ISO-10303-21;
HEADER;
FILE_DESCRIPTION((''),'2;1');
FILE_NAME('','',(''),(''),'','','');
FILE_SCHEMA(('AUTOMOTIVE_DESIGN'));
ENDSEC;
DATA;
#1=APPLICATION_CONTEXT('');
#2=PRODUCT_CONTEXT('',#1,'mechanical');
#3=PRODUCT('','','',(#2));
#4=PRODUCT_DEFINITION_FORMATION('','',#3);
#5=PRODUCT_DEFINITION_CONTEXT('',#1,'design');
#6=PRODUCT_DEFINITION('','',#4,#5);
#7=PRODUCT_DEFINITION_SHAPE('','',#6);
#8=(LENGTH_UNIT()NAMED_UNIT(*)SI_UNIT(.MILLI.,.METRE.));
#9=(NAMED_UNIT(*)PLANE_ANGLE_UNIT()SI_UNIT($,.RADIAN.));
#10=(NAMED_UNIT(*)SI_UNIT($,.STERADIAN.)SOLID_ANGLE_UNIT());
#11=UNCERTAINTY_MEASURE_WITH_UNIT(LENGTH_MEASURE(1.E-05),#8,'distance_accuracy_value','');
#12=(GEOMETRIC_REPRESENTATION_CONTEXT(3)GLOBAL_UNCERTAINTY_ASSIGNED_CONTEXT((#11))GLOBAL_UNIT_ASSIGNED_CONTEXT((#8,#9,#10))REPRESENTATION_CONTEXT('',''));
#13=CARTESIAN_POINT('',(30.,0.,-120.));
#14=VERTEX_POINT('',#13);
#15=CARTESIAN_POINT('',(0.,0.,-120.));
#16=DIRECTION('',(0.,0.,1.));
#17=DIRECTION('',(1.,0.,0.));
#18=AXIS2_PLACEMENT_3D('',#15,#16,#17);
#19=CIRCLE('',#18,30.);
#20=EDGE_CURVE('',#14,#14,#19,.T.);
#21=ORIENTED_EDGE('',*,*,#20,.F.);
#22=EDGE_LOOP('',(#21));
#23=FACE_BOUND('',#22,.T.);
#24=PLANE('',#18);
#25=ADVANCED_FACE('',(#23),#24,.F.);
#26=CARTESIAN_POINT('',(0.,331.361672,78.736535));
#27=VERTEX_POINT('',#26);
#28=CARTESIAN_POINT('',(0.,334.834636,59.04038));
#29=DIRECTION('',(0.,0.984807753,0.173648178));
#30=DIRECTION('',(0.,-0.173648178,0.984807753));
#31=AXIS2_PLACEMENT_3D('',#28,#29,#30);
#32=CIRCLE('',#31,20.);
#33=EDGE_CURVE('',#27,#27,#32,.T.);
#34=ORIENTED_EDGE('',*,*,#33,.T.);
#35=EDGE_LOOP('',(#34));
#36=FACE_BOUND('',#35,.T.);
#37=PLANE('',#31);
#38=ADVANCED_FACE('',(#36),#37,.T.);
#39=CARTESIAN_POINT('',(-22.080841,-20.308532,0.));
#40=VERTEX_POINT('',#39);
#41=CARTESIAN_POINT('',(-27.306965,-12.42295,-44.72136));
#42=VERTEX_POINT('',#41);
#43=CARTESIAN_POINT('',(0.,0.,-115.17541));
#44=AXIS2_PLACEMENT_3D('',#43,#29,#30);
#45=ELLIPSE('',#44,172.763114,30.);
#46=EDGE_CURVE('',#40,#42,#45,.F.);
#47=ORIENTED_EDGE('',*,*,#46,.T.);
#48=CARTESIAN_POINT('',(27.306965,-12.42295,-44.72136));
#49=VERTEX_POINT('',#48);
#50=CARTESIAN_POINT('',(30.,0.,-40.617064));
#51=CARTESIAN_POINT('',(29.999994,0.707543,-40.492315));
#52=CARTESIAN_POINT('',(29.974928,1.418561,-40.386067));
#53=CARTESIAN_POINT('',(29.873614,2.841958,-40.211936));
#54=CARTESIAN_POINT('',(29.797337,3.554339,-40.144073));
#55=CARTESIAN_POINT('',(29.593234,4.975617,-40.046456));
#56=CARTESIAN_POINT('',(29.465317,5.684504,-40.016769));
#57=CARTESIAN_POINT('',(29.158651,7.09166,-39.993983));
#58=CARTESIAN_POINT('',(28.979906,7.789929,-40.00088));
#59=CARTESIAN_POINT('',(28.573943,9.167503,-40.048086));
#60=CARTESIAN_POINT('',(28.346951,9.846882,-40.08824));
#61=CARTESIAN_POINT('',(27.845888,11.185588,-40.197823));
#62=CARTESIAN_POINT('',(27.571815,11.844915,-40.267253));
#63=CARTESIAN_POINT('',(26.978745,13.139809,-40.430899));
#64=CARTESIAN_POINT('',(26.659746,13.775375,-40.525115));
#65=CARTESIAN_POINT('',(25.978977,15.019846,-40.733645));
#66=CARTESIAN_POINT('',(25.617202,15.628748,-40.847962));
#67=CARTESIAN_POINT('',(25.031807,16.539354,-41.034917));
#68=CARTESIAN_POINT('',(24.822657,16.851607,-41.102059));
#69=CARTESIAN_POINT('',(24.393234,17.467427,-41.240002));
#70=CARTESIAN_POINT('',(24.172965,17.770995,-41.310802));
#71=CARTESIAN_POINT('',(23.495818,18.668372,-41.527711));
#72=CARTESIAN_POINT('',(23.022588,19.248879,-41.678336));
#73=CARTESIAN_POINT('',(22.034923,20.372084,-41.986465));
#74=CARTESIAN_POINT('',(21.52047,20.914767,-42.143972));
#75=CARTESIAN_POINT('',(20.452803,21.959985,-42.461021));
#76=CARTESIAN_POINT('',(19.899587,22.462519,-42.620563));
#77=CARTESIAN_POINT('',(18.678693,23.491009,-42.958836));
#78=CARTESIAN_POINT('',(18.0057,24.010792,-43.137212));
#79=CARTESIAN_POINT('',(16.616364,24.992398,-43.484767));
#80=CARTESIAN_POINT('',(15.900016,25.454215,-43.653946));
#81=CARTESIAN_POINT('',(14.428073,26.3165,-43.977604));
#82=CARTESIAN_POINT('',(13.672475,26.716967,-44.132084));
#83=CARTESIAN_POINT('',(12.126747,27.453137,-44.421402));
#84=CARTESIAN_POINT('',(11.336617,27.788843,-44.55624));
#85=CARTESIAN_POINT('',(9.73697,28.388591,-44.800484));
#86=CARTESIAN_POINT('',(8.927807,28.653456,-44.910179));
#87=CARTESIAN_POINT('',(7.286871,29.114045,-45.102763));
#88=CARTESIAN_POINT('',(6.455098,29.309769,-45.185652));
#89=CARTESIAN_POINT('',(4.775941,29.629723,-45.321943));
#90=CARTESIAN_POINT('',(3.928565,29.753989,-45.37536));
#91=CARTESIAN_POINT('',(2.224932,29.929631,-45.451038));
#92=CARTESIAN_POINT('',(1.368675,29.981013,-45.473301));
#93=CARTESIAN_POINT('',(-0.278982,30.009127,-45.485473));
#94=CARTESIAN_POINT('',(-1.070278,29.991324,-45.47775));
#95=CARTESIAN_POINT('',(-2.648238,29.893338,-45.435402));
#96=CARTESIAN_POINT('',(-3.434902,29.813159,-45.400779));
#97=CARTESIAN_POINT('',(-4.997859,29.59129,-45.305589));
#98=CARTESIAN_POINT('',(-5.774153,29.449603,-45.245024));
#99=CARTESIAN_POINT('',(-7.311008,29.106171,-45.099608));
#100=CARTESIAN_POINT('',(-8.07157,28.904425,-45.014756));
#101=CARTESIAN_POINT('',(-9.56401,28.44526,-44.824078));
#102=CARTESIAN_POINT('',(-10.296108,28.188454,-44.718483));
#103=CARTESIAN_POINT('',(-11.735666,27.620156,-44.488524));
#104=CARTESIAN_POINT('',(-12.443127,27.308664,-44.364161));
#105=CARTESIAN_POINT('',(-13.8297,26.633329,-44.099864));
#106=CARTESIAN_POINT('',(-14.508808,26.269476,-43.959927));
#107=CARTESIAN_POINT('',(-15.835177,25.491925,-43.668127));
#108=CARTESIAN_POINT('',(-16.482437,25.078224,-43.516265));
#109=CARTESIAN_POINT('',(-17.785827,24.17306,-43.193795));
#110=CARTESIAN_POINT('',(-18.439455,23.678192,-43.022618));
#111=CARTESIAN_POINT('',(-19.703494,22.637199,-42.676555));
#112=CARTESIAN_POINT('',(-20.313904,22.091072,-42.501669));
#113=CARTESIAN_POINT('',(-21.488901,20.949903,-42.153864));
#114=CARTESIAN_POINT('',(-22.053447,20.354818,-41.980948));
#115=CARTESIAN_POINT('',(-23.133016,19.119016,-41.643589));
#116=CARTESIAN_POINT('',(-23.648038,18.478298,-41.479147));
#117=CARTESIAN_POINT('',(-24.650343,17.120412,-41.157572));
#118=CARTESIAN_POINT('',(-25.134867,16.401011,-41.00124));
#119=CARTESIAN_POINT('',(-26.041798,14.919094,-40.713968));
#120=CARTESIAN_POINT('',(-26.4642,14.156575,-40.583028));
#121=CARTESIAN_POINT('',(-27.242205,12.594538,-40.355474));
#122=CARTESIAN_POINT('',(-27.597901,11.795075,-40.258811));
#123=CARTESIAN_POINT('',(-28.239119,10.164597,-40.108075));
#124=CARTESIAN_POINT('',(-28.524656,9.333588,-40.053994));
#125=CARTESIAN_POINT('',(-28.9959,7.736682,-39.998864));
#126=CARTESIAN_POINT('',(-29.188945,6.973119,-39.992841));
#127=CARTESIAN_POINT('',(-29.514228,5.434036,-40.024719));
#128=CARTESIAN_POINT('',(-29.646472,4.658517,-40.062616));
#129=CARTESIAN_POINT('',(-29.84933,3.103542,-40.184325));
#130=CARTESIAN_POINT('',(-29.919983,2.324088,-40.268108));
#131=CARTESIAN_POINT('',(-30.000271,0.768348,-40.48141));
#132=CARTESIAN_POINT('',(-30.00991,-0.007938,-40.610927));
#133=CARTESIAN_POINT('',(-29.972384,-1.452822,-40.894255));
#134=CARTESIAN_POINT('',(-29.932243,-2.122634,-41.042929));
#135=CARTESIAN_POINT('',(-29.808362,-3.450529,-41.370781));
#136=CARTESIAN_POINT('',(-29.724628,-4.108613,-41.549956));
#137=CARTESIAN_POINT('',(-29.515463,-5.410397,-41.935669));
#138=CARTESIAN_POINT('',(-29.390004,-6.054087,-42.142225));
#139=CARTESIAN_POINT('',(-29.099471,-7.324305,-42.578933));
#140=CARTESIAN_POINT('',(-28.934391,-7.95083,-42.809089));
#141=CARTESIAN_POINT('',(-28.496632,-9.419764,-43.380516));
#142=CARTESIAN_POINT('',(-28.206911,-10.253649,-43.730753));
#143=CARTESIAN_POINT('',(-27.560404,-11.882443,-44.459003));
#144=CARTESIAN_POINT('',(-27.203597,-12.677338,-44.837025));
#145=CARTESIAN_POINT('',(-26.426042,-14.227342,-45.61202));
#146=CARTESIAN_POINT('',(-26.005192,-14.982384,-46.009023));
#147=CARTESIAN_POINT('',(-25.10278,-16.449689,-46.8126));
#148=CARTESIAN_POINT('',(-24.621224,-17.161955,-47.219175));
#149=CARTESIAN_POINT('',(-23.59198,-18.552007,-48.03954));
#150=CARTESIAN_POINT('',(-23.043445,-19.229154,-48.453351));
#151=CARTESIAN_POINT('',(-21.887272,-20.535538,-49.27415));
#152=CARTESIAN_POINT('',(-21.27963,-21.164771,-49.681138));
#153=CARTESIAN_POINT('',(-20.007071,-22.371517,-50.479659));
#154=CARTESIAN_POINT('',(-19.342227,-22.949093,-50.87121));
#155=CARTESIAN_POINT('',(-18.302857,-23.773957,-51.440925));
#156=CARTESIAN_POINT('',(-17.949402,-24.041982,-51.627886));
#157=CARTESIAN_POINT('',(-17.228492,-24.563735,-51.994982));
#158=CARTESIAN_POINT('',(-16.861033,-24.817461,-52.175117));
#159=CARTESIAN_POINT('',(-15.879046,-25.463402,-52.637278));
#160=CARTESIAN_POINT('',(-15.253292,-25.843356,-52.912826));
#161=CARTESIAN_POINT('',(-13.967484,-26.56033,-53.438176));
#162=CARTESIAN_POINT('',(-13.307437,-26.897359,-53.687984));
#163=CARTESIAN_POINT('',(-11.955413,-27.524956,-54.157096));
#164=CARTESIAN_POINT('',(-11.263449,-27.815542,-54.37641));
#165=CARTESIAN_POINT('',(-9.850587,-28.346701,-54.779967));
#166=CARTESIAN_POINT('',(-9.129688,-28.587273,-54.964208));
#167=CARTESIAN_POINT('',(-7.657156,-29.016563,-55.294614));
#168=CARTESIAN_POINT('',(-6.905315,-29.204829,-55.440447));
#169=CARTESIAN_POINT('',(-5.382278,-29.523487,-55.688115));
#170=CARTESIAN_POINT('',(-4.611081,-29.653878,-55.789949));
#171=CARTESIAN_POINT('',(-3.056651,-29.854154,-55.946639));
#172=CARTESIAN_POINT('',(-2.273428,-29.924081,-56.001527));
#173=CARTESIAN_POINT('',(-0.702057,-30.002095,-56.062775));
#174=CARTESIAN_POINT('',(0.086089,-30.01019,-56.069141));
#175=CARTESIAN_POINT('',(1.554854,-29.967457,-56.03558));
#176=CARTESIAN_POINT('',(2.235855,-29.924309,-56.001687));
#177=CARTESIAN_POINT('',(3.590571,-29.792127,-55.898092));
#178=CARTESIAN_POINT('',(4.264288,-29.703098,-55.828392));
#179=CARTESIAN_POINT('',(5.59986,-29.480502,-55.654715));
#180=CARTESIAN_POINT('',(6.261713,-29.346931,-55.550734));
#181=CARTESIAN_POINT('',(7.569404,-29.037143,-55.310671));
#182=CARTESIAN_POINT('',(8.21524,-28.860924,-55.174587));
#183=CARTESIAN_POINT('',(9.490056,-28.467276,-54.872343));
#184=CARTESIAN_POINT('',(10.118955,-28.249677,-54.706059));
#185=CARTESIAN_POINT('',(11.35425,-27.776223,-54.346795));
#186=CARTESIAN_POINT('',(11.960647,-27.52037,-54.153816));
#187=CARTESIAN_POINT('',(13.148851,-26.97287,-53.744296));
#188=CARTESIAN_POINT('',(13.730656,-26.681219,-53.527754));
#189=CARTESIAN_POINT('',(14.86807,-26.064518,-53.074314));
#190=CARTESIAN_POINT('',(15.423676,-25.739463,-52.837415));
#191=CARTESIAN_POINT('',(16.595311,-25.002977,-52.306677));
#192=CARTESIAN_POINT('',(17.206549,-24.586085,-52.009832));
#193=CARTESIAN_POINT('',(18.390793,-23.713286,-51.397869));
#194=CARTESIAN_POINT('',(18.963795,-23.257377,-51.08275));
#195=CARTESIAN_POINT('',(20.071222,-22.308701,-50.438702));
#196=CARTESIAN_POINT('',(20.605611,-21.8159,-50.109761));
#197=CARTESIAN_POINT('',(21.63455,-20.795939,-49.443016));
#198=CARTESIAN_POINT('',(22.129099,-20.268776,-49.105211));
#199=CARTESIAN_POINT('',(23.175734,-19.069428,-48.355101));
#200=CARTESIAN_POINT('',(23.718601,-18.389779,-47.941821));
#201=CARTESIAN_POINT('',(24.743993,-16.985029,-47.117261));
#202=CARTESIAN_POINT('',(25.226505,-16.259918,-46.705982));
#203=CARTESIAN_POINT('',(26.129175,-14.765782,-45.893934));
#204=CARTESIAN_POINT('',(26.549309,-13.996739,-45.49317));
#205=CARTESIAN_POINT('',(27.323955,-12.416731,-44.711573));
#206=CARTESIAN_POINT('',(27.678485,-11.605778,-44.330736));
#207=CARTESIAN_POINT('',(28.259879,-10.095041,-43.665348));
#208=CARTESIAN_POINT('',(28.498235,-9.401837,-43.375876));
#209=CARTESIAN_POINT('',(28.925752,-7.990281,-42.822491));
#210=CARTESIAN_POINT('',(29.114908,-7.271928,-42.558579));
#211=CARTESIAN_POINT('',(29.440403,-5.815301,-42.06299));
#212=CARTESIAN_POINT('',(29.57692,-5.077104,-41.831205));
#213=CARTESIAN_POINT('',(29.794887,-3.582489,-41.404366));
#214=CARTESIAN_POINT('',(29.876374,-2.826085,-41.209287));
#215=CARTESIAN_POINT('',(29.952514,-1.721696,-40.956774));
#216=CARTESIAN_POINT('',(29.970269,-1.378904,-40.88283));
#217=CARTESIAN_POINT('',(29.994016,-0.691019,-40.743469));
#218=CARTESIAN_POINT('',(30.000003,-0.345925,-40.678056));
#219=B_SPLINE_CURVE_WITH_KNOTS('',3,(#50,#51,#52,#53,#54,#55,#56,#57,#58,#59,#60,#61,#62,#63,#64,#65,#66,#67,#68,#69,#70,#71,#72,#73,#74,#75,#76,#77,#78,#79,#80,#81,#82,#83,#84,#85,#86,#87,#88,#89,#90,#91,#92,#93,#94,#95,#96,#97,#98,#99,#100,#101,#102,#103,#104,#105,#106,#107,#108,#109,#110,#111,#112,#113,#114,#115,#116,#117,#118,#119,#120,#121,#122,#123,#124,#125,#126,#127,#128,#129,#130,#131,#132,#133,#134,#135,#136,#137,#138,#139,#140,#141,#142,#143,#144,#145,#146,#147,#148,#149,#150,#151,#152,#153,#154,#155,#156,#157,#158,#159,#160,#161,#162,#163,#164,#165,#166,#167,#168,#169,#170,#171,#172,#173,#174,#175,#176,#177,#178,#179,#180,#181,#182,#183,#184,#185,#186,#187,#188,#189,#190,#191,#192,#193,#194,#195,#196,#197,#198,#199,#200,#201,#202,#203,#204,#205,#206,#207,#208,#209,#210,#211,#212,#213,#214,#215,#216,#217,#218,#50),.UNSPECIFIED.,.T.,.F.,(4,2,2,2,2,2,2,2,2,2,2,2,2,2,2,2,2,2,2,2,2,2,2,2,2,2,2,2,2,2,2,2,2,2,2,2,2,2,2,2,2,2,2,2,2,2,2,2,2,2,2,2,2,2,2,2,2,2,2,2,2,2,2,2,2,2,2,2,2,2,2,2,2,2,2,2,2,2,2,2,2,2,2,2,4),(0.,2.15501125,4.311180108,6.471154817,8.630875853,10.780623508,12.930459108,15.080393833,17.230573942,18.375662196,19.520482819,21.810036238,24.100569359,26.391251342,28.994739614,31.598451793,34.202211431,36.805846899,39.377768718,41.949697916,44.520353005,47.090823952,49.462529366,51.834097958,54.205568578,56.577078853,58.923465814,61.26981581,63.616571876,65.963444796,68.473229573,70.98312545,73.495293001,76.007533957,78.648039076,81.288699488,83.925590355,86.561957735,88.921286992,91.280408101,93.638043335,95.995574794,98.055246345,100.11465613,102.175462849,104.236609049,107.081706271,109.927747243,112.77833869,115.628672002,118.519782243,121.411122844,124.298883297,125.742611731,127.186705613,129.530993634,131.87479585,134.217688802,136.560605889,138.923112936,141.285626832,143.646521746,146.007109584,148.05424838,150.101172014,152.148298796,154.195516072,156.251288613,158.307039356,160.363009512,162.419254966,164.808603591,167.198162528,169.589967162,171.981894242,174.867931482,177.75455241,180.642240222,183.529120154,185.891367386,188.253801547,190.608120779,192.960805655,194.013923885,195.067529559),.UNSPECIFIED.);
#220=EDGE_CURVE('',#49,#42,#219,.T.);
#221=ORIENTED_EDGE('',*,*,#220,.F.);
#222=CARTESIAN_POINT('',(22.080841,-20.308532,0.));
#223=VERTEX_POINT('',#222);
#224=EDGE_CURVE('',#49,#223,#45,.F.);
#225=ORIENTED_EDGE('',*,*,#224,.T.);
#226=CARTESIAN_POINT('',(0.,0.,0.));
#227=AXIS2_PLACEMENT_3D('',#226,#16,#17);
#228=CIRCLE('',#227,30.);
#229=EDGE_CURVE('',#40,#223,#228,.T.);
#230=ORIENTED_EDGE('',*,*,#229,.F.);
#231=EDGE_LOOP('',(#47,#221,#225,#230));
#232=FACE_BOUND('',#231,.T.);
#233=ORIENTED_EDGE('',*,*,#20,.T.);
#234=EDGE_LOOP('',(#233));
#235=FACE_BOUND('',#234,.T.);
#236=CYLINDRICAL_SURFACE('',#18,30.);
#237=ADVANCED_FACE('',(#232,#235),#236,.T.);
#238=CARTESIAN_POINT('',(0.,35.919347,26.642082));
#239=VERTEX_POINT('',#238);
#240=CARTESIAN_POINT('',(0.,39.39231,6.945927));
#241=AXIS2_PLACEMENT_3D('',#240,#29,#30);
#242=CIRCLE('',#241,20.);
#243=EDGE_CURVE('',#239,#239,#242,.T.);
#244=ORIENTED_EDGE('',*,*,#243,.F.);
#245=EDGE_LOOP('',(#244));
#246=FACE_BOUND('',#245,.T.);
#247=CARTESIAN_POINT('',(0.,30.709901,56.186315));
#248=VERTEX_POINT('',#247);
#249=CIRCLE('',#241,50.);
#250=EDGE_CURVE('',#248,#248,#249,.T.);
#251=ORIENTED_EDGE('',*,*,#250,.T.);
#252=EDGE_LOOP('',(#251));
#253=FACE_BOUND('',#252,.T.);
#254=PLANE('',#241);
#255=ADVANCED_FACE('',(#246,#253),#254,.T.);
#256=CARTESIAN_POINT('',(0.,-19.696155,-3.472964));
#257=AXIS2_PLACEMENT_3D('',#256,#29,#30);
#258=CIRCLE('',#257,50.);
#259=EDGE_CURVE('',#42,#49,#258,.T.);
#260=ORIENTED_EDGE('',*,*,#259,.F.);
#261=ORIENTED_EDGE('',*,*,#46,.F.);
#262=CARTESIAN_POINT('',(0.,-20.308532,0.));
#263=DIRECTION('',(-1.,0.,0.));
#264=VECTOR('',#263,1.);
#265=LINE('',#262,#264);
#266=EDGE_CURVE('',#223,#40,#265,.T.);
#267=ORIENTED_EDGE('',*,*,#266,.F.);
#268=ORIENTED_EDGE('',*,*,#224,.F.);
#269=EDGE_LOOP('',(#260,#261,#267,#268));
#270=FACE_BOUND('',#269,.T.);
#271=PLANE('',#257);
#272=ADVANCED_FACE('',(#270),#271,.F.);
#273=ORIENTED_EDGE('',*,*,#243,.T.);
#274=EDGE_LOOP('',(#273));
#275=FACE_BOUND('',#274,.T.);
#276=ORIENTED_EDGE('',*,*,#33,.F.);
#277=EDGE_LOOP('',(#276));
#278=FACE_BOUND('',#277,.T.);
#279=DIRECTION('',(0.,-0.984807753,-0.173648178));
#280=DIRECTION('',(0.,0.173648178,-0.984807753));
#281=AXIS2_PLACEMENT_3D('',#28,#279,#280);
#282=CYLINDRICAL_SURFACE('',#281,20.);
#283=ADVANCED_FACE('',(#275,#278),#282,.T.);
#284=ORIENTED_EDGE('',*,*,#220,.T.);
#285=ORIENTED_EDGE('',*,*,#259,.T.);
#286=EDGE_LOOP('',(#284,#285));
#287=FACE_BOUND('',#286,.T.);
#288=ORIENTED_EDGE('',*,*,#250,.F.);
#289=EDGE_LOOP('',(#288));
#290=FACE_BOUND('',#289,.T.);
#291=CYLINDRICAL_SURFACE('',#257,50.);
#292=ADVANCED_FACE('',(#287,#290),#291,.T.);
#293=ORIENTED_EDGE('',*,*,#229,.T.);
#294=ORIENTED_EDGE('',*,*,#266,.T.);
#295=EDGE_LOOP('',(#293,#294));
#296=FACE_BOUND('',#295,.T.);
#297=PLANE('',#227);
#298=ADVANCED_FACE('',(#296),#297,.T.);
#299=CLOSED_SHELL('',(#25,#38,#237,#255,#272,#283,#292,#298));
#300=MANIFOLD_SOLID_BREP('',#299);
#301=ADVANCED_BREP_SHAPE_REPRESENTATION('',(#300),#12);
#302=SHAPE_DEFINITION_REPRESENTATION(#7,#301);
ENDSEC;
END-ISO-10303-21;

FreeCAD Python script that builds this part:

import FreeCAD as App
import Part
import Sketcher
from FreeCAD import Vector

doc = App.newDocument("Part")
body = doc.addObject("PartDesign::Body", "Body")

sketch1 = doc.addObject("Sketcher::SketchObject", "Sketch")
body.addObject(sketch1)
sketch1.AttachmentSupport = (doc.XY_Plane, [""])
sketch1.MapMode = "FlatFace"
sketch1.addGeometry(Part.Circle(Vector(0, 0, 0), Vector(0, 0, 1), 30), False)
sketch1.addConstraint(Sketcher.Constraint("Coincident", 0, 3, -1, 1))
sketch1.addConstraint(Sketcher.Constraint("Diameter", 0, 60.0))
pad1 = doc.addObject("PartDesign::Pad", "Pad")
body.addObject(pad1)
pad1.Profile = sketch1
pad1.Length = 120
pad1.Reversed = True

sketch2 = doc.addObject("Sketcher::SketchObject", "Sketch001")
body.addObject(sketch2)
sketch2.Placement = App.Placement(Vector(0, 0, 0), App.Rotation(Vector(1, 0, 0), Vector(0, 0.173648178, -0.984807753), Vector(0, 0.984807753, 0.173648178), "ZXY"))
sketch2.addGeometry(Part.Circle(Vector(0, 0, 0), Vector(0, 0, 1), 50), False)
sketch2.addConstraint(Sketcher.Constraint("Coincident", 0, 3, -1, 1))
sketch2.addConstraint(Sketcher.Constraint("Diameter", 0, 100.0))
pad2 = doc.addObject("PartDesign::Pad", "Pad001")
body.addObject(pad2)
pad2.Profile = sketch2
pad2.Type = "TwoLengths"
pad2.Length = 40
pad2.Length2 = 20

sketch3 = doc.addObject("Sketcher::SketchObject", "Sketch002")
body.addObject(sketch3)
sketch3.Placement = App.Placement(Vector(0, 39.39231, 6.945927), App.Rotation(Vector(1, 0, 0), Vector(0, 0.173648178, -0.984807753), Vector(0, 0.984807753, 0.173648178), "ZXY"))
sketch3.addGeometry(Part.Circle(Vector(0, 0, 0), Vector(0, 0, 1), 20), False)
sketch3.addConstraint(Sketcher.Constraint("Coincident", 0, 3, -1, 1))
sketch3.addConstraint(Sketcher.Constraint("Diameter", 0, 40.0))
pad3 = doc.addObject("PartDesign::Pad", "Pad002")
body.addObject(pad3)
pad3.Profile = sketch3
pad3.Length = 300

doc.recompute()
